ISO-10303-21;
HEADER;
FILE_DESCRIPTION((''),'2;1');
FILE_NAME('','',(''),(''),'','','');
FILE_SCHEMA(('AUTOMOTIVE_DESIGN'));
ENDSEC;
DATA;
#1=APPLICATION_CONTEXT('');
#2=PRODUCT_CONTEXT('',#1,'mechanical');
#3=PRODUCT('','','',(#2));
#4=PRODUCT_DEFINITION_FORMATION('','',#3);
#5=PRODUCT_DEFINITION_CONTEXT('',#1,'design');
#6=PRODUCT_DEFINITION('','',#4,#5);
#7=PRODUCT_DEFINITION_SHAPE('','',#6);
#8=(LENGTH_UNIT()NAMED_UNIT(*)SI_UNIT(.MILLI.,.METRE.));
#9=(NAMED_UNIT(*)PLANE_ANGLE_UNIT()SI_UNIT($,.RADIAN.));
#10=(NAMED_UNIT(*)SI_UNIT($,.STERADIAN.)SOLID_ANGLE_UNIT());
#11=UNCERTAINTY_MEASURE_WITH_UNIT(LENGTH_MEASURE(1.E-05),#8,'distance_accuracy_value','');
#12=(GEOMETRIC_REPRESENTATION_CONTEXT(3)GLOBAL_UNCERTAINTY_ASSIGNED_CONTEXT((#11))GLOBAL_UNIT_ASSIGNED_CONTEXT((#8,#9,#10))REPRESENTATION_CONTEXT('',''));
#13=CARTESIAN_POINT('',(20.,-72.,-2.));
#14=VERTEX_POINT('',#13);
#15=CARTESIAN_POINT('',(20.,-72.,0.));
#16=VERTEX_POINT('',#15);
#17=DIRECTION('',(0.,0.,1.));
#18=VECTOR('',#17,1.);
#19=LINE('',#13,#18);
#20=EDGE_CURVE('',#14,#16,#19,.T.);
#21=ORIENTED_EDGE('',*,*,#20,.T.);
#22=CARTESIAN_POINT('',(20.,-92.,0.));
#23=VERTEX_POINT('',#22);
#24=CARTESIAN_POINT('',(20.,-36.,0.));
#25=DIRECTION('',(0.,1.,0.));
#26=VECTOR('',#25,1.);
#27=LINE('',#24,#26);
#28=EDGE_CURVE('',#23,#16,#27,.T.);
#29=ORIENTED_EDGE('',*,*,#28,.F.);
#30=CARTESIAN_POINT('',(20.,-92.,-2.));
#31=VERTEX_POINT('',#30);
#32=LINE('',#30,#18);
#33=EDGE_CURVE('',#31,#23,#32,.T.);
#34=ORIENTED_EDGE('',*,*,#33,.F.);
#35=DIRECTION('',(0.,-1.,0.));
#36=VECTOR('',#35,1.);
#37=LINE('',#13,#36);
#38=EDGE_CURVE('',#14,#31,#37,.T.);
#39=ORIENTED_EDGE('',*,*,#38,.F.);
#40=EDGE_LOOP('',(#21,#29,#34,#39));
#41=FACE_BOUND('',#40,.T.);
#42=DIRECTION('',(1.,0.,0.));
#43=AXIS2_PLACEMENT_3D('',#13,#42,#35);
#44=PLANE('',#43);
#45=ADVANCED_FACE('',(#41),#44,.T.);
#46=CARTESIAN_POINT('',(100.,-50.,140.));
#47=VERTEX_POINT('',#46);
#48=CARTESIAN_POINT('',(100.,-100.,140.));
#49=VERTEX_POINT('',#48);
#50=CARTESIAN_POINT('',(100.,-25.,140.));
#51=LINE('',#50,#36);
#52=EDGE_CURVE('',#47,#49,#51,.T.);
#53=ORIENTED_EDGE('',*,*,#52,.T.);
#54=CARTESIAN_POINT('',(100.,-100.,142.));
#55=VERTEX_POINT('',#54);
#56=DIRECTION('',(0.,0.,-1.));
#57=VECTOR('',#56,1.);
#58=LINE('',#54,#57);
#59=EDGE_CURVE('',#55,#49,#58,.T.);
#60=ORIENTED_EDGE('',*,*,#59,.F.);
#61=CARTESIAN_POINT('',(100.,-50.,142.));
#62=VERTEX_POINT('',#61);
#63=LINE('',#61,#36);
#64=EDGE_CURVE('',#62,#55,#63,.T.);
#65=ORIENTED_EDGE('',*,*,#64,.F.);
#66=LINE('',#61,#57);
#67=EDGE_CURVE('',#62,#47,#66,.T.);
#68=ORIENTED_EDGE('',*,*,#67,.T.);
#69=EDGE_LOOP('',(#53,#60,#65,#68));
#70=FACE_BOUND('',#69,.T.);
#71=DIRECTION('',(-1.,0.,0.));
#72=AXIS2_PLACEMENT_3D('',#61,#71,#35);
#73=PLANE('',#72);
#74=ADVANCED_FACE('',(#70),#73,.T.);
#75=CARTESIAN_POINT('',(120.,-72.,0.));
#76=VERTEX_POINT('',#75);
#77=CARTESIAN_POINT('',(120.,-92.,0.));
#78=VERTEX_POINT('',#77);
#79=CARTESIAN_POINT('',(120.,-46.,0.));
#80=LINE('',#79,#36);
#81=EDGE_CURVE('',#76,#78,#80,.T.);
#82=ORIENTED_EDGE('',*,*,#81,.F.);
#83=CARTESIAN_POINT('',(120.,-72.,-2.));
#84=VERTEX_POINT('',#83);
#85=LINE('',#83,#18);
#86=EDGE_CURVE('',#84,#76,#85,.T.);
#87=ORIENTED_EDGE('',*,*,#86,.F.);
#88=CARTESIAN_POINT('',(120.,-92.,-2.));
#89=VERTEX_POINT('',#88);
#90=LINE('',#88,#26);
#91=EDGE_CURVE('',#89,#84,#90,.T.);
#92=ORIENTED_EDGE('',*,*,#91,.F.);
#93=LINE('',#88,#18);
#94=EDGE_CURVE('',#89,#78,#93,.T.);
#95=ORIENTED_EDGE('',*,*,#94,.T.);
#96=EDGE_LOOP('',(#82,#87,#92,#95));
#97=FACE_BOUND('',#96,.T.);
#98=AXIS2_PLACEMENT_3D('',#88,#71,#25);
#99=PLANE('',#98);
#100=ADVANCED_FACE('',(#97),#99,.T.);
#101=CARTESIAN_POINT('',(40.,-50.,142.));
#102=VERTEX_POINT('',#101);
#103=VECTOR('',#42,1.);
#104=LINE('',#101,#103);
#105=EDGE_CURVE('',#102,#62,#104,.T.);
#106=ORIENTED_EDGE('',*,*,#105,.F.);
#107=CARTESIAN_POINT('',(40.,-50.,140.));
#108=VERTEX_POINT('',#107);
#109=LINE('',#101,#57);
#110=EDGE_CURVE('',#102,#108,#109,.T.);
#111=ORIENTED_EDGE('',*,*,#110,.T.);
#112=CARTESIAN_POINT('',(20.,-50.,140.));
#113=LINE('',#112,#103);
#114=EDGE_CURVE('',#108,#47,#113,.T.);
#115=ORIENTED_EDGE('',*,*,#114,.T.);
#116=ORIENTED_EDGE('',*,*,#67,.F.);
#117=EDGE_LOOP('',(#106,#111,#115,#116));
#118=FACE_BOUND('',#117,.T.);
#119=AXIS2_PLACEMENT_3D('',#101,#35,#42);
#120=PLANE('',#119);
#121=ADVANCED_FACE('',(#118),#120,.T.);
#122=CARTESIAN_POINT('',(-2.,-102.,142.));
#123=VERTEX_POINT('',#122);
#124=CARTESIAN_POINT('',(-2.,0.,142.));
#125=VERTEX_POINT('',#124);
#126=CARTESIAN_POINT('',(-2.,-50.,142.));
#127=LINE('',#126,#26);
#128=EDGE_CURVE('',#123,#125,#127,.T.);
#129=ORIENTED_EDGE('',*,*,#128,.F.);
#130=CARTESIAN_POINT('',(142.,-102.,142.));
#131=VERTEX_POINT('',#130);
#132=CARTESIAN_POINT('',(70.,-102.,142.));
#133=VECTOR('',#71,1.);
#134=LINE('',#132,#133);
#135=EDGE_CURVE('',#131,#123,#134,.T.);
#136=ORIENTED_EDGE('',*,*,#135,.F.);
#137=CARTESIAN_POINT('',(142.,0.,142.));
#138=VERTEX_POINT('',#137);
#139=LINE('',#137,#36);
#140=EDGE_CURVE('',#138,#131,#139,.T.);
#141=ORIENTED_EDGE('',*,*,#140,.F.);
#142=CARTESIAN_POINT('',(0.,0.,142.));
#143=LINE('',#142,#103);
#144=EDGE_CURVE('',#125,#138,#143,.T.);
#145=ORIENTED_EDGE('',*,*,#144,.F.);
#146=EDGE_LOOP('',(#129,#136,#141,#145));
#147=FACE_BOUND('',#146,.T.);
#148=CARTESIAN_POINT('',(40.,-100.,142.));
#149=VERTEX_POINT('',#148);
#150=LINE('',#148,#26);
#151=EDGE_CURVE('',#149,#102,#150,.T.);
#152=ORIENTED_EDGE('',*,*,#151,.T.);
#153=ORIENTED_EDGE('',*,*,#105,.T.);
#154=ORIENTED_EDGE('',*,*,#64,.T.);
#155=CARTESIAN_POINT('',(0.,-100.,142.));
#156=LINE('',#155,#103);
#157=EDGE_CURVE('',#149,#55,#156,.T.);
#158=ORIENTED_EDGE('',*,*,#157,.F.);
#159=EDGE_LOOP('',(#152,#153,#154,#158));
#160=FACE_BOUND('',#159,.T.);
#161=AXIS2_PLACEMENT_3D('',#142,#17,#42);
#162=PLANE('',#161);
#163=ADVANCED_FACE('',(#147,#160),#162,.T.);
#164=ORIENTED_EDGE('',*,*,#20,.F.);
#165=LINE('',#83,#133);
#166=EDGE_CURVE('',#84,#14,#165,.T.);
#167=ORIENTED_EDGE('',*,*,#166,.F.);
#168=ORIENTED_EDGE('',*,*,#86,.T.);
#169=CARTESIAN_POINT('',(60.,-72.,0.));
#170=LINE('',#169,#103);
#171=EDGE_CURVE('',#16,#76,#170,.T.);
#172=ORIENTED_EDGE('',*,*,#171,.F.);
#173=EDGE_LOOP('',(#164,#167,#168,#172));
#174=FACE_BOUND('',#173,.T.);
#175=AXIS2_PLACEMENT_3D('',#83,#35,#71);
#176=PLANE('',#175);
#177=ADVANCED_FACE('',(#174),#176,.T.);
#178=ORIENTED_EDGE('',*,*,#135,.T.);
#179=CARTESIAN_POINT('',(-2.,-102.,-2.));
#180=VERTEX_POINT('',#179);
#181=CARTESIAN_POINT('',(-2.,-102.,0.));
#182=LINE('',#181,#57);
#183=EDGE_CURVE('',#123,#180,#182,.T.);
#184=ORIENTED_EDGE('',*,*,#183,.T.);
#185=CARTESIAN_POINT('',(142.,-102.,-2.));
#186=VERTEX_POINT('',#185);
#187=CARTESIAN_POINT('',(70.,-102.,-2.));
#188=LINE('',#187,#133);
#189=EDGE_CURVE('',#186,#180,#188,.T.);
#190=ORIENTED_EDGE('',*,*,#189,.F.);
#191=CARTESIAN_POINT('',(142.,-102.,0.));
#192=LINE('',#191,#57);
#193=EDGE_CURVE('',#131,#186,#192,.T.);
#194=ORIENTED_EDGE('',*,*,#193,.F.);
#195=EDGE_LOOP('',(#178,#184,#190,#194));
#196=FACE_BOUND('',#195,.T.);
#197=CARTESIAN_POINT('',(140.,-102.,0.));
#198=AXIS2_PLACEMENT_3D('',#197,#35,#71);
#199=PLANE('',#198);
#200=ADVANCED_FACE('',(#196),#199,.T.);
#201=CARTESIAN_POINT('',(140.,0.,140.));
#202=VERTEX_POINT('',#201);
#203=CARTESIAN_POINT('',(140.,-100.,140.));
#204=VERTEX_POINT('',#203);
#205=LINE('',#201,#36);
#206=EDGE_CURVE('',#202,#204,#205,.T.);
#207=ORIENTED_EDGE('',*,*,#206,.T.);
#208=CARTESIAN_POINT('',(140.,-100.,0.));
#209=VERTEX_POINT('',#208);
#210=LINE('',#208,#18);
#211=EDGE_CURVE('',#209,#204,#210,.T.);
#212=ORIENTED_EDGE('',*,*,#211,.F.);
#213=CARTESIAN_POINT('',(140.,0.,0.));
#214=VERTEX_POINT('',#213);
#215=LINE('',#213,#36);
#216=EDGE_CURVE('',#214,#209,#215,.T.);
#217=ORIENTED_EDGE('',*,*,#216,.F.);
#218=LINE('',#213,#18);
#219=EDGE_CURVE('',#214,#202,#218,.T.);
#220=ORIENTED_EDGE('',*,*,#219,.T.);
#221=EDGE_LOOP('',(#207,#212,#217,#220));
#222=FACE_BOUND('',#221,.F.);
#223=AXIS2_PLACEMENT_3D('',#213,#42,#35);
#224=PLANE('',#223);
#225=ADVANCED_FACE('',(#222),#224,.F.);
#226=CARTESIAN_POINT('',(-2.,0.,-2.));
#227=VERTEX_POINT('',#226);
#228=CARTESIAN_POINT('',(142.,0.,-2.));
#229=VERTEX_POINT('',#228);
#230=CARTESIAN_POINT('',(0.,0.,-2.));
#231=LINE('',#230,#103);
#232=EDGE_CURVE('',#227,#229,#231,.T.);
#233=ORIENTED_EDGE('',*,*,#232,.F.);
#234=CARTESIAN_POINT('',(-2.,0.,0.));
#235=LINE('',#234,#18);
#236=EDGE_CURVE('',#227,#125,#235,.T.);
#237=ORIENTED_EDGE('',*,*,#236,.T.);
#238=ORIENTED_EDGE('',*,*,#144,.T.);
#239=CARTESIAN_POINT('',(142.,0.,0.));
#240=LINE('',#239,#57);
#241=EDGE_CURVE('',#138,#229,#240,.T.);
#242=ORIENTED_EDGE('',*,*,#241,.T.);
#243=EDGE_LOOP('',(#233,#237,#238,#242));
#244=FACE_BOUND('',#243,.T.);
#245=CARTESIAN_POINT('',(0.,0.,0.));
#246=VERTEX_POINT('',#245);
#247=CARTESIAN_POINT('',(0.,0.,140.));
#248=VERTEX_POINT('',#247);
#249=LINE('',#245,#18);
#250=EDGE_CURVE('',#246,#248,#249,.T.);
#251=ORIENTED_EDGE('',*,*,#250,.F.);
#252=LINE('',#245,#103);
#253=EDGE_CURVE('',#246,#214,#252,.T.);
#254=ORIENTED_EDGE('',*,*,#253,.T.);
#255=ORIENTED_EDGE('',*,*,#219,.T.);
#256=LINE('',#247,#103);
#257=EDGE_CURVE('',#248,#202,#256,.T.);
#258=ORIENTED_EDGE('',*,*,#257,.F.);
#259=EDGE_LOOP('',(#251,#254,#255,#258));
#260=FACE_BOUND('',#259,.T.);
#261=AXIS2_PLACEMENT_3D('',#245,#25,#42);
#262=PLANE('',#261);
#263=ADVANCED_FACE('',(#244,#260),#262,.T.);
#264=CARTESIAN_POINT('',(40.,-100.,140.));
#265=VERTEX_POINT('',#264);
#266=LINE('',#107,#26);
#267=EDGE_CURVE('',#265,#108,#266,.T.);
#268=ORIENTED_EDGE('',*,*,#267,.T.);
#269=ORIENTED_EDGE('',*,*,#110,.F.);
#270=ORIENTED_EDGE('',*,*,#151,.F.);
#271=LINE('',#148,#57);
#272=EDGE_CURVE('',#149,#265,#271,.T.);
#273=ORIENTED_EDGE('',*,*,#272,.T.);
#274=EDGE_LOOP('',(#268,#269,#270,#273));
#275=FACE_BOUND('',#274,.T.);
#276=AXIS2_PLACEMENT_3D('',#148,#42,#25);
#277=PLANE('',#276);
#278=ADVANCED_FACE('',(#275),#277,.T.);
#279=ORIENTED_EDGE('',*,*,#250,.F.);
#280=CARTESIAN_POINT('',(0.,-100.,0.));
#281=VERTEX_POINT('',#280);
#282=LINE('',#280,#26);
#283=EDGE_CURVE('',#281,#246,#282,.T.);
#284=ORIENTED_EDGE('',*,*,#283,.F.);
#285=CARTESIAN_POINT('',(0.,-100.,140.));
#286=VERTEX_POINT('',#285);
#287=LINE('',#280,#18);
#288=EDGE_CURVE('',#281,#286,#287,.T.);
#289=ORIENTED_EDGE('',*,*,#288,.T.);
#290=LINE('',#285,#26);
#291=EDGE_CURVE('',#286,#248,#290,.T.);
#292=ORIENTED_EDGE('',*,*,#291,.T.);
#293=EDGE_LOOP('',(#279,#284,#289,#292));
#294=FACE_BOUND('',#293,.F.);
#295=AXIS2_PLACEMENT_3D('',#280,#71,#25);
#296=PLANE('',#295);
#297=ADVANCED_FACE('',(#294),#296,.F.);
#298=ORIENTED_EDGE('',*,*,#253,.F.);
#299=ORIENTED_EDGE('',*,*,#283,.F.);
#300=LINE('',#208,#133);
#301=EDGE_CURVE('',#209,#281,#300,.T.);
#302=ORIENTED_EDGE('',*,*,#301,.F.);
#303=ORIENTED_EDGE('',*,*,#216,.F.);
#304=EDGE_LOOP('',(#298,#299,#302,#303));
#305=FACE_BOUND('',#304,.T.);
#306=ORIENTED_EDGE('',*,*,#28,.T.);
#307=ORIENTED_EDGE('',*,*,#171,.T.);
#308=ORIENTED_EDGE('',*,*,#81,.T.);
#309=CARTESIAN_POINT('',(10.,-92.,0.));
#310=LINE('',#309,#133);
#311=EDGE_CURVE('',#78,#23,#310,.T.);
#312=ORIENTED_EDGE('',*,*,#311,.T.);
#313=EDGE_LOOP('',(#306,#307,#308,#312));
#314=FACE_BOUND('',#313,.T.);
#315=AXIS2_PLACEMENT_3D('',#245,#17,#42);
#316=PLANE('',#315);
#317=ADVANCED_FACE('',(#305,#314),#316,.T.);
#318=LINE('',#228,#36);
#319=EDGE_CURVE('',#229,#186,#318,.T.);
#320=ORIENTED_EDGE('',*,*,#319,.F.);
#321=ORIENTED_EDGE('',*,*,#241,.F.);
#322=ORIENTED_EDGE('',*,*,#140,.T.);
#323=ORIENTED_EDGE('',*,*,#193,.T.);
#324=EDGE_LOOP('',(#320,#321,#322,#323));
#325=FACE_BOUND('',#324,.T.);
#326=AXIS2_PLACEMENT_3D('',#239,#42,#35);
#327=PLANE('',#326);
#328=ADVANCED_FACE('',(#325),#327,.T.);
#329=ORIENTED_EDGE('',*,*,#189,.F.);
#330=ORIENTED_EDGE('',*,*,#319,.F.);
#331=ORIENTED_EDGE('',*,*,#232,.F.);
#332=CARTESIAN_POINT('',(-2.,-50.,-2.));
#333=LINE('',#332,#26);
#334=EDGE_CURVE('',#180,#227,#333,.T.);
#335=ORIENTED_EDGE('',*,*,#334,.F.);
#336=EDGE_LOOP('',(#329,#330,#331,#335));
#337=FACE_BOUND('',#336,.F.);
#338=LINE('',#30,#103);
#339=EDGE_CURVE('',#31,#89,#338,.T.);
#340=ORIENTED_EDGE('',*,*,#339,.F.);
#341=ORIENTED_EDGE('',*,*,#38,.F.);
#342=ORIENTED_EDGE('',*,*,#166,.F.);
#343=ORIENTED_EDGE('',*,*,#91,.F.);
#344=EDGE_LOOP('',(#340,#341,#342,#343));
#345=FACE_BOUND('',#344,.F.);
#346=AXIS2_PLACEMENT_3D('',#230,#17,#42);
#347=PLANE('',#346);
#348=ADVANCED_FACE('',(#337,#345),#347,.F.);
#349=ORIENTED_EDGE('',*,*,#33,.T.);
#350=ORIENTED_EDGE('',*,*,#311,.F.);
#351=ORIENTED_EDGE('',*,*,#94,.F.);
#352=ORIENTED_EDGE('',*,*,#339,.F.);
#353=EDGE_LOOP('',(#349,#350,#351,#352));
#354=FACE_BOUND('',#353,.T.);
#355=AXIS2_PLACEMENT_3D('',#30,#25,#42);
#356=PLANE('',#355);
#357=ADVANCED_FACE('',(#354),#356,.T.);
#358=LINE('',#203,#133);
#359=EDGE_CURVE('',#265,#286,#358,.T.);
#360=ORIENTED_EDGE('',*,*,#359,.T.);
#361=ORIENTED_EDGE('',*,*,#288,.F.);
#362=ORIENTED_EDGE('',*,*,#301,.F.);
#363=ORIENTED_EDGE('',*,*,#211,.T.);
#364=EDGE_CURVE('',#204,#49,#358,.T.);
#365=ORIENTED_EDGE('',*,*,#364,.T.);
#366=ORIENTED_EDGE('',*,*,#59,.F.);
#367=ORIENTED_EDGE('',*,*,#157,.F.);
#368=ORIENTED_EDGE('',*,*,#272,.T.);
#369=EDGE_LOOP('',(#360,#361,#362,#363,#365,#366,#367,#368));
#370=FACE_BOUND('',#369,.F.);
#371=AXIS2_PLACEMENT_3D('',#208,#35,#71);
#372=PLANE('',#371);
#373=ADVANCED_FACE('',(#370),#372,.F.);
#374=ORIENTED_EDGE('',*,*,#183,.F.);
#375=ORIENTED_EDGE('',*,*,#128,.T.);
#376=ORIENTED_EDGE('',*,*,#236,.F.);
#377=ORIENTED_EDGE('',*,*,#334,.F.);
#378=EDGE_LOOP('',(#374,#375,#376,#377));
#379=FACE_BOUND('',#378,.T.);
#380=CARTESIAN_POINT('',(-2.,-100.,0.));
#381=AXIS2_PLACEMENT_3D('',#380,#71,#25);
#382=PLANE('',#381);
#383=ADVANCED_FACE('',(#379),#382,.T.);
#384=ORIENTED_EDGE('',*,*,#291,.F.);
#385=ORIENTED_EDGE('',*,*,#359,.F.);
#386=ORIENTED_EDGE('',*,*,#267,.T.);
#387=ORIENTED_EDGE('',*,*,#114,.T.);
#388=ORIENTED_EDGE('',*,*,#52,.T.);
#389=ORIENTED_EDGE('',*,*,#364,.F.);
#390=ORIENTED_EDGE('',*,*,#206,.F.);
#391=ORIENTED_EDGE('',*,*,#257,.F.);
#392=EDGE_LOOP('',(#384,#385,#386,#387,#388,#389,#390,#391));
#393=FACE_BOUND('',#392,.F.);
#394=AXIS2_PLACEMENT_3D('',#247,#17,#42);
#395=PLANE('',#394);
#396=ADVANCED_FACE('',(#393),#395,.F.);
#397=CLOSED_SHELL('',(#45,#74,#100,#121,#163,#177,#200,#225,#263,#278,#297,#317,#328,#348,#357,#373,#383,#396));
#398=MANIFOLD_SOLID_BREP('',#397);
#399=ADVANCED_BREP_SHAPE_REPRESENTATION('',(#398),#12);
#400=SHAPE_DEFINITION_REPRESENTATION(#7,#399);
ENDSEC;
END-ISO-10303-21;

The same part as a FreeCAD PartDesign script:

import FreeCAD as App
import Part
import Sketcher

V = App.Vector
Q = App.Units.Quantity


def faces_at(feature, points):
    """Names of the faces that lie closest to the given points."""
    faces = feature.Shape.Faces
    near = lambda p: min(range(len(faces)), key=lambda i: faces[i].distToShape(Part.Vertex(*p))[0])
    return sorted({f"Face{near(p) + 1}" for p in points})


def add_polygon(sketch, points):
    """Adds a closed chain of lines whose ends are joined by coincident constraints."""
    first, n = sketch.GeometryCount, len(points)
    for a, b in zip(points, points[1:] + points[:1]):
        sketch.addGeometry(Part.LineSegment(App.Vector(*a, 0), App.Vector(*b, 0)), False)
    for i in range(n):
        sketch.addConstraint(Sketcher.Constraint("Coincident", first + i, 2, first + (i + 1) % n, 1))

doc = App.newDocument("Part")
body = doc.addObject("PartDesign::Body", "Body")

# Sketch on XY plane
sketch1 = body.newObject("Sketcher::SketchObject", "Sketch")
sketch1.AttachmentSupport = (doc.getObject("XY_Plane"), [""])
sketch1.MapMode = "FlatFace"
add_polygon(sketch1, [(140, 0), (0, 0), (0, -100), (140, -100)])  # lines 0-3
sketch1.addConstraint([
    Sketcher.Constraint("Horizontal", 0),
    Sketcher.Constraint("Vertical", 1),
    Sketcher.Constraint("Horizontal", 2),
    Sketcher.Constraint("Vertical", 3),
    Sketcher.Constraint("Coincident", 0, 2, -1, 1),
    Sketcher.Constraint("DistanceX", 0, 2, 0, 1, Q("140 mm")),
    Sketcher.Constraint("DistanceY", 1, 2, 1, 1, Q("100 mm")),
])
pad1 = body.newObject("PartDesign::Pad", "Pad")
pad1.Profile = sketch1
pad1.Length = 140
doc.recompute()

thickness = body.newObject("PartDesign::Thickness", "Thickness")
thickness.Base = (pad1, faces_at(pad1, [(93.333, 0, 93.333)]))
thickness.Value = 2
thickness.Reversed = False
thickness.Join = "Intersection"

# Sketch on XY plane
sketch2 = body.newObject("Sketcher::SketchObject", "Sketch001")
sketch2.AttachmentSupport = (doc.getObject("XY_Plane"), [""])
sketch2.MapMode = "FlatFace"
sketch2.AttachmentOffset = App.Placement(V(0, 0, 142), App.Rotation())
add_polygon(sketch2, [(40, -50), (40, -100), (100, -100), (100, -50)])  # lines 0-3
sketch2.addConstraint([
    Sketcher.Constraint("Vertical", 0),
    Sketcher.Constraint("Horizontal", 1),
    Sketcher.Constraint("Vertical", 2),
    Sketcher.Constraint("Horizontal", 3),
    Sketcher.Constraint("DistanceY", 0, 2, 0, 1, Q("50 mm")),
    Sketcher.Constraint("DistanceX", -1, 1, 0, 2, Q("40 mm")),
    Sketcher.Constraint("DistanceY", 2, 2, -1, 1, Q("50 mm")),
    Sketcher.Constraint("DistanceX", 1, 1, 1, 2, Q("60 mm")),
])
pocket1 = body.newObject("PartDesign::Pocket", "Pocket")
pocket1.Profile = sketch2
pocket1.Length = 14

# Sketch on XY plane
sketch3 = body.newObject("Sketcher::SketchObject", "Sketch002")
sketch3.AttachmentSupport = (doc.getObject("XY_Plane"), [""])
sketch3.MapMode = "FlatFace"
sketch3.AttachmentOffset = App.Placement(V(0, 0, -2), App.Rotation())
add_polygon(sketch3, [(20, -72), (120, -72), (120, -92), (20, -92)])  # lines 0-3
sketch3.addConstraint([
    Sketcher.Constraint("Horizontal", 0),
    Sketcher.Constraint("Vertical", 1),
    Sketcher.Constraint("Horizontal", 2),
    Sketcher.Constraint("Vertical", 3),
    Sketcher.Constraint("DistanceY", 1, 2, 1, 1, Q("20 mm")),
    Sketcher.Constraint("DistanceX", -1, 1, 2, 2, Q("20 mm")),
    Sketcher.Constraint("DistanceX", 0, 1, 0, 2, Q("100 mm")),
    Sketcher.Constraint("DistanceY", 0, 2, -1, 1, Q("72 mm")),
])
pocket2 = body.newObject("PartDesign::Pocket", "Pocket001")
pocket2.Profile = sketch3
pocket2.Length = 10
pocket2.Reversed = True

doc.recompute()
